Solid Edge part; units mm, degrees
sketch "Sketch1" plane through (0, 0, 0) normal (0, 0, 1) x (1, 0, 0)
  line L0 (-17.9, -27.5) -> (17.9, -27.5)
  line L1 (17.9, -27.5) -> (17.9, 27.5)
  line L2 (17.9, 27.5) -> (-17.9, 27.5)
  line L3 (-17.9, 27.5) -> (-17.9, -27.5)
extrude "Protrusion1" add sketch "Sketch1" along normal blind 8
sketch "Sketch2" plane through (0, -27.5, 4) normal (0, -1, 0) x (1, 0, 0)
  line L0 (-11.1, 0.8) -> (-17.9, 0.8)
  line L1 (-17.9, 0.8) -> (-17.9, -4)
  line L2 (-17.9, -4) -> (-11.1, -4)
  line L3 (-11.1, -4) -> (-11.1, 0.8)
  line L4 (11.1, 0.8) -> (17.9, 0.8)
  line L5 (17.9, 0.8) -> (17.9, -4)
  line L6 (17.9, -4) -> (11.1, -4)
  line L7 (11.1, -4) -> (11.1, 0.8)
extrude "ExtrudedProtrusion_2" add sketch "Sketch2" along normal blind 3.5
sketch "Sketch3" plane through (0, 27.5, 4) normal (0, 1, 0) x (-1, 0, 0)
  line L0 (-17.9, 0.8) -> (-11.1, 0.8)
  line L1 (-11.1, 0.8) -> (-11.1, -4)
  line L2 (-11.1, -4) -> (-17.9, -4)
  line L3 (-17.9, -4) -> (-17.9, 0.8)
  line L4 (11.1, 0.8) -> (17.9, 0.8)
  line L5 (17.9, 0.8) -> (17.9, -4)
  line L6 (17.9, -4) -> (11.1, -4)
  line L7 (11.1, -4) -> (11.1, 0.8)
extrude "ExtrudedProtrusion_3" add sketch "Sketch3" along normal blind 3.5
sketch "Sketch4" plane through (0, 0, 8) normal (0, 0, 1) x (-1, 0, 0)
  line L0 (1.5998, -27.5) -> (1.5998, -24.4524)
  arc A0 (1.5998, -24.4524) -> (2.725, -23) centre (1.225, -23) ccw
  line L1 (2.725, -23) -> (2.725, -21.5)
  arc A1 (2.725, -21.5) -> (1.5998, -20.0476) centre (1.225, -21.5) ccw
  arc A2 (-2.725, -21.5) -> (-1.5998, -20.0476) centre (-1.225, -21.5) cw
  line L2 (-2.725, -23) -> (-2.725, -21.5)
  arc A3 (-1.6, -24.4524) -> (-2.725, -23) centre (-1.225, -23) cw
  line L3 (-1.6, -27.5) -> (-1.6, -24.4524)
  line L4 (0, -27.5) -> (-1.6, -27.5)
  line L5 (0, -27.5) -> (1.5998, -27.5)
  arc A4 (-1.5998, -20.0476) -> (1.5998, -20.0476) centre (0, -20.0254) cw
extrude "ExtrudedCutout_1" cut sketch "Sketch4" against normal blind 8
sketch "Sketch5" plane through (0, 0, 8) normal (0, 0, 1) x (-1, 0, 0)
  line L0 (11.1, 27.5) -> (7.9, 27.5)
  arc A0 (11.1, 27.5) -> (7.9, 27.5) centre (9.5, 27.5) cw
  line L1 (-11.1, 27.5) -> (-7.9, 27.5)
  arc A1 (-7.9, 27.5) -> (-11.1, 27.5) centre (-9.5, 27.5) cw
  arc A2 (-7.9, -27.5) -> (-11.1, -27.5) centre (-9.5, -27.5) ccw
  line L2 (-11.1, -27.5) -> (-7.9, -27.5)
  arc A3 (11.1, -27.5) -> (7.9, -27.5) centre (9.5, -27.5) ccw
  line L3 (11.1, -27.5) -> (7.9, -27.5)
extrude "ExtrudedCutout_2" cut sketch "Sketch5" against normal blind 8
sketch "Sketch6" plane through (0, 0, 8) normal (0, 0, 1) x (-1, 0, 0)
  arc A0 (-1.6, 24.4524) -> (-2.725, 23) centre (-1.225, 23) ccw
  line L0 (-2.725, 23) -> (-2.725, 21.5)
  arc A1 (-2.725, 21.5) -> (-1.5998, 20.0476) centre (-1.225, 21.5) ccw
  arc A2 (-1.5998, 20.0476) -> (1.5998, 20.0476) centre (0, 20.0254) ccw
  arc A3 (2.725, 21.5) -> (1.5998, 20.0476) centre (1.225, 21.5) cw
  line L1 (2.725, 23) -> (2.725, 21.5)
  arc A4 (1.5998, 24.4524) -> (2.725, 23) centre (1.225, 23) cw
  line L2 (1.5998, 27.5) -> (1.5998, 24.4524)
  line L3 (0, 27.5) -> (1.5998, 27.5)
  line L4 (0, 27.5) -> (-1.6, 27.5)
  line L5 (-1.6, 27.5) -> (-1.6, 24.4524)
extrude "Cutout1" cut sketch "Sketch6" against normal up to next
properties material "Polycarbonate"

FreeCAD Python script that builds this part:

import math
import FreeCAD as App
import Part
import Sketcher

V = App.Vector
Q = App.Units.Quantity


def add_polygon(sketch, points):
    """Adds a closed chain of lines whose ends are joined by coincident constraints."""
    first, n = sketch.GeometryCount, len(points)
    for a, b in zip(points, points[1:] + points[:1]):
        sketch.addGeometry(Part.LineSegment(App.Vector(*a, 0), App.Vector(*b, 0)), False)
    for i in range(n):
        sketch.addConstraint(Sketcher.Constraint("Coincident", first + i, 2, first + (i + 1) % n, 1))

doc = App.newDocument("Part")
params = doc.addObject("Spreadsheet::Sheet", "Params")
for row, (alias, value) in enumerate([
    ("sketch1_height", "55 mm"),
    ("sketch1_width", "35.8 mm"),
    ("pad1_length", "8 mm"),
    ("sketch2_width", "6.8 mm"),
    ("sketch2_height", "4.8 mm"),
    ("pad2_length", "3.5 mm"),
    ("sketch3_width", "6.8 mm"),
    ("sketch3_height", "4.8 mm"),
    ("pad3_length", "3.5 mm"),
    ("sketch4_radius", "1.5 mm"),
    ("sketch4_radius2", "1.5 mm"),
    ("sketch4_radius3", "1.6 mm"),
    ("sketch4_radius4", "1.5 mm"),
    ("sketch4_radius5", "1.5 mm"),
    ("pocket1_length", "8 mm"),
    ("sketch5_radius", "1.6 mm"),
    ("pocket2_length", "8 mm"),
    ("sketch6_radius", "1.5 mm"),
    ("sketch6_radius2", "1.5 mm"),
    ("sketch6_radius3", "1.6 mm"),
    ("sketch6_radius4", "1.5 mm"),
    ("sketch6_radius5", "1.5 mm"),
], start=1):
    params.set(f"A{row}", alias)
    params.set(f"B{row}", "=" + value)
    params.setAlias(f"B{row}", alias)

body = doc.addObject("PartDesign::Body", "Body")

# Sketch on XY plane
sketch1 = doc.addObject("Sketcher::SketchObject", "Sketch")
body.addObject(sketch1)
sketch1.AttachmentSupport = (doc.XY_Plane, [""])
sketch1.MapMode = "FlatFace"
add_polygon(sketch1, [(-18, 28), (-18, -28), (18, -28), (18, 28)])  # lines 0-3
sketch1.addConstraint(Sketcher.Constraint("Vertical", 0))
sketch1.addConstraint(Sketcher.Constraint("Horizontal", 1))
sketch1.addConstraint(Sketcher.Constraint("Vertical", 2))
sketch1.addConstraint(Sketcher.Constraint("Horizontal", 3))
sketch1.addConstraint(Sketcher.Constraint("Symmetric", 0, 2, 2, 2, -1, 1))
sketch1.addConstraint(Sketcher.Constraint("DistanceY", 0, 2, 0, 1, Q("55 mm")))
sketch1.addConstraint(Sketcher.Constraint("DistanceX", 1, 1, 1, 2, Q("35.8 mm")))
sketch1.setExpression("Constraints[9]", "Params.sketch1_height")
sketch1.setExpression("Constraints[10]", "Params.sketch1_width")
pad1 = doc.addObject("PartDesign::Pad", "Pad")
body.addObject(pad1)
pad1.Profile = sketch1
pad1.setExpression("Length", "Params.pad1_length")

# Sketch on XZ plane
sketch2 = doc.addObject("Sketcher::SketchObject", "Sketch001")
body.addObject(sketch2)
sketch2.AttachmentSupport = (doc.XZ_Plane, [""])
sketch2.MapMode = "FlatFace"
sketch2.AttachmentOffset = App.Placement(V(0, 0, 27.5), App.Rotation())
add_polygon(sketch2, [(-11.1, 0), (-11.1, 4.8), (-17.9, 4.8), (-17.9, 0)])  # lines 0-3
add_polygon(sketch2, [(17.9, 4.8), (11.1, 4.8), (11.1, 0), (17.9, 0)])  # lines 4-7
sketch2.addConstraint(Sketcher.Constraint("Vertical", 0))
sketch2.addConstraint(Sketcher.Constraint("Horizontal", 1))
sketch2.addConstraint(Sketcher.Constraint("Vertical", 2))
sketch2.addConstraint(Sketcher.Constraint("Horizontal", 3))
sketch2.addConstraint(Sketcher.Constraint("Horizontal", 4))
sketch2.addConstraint(Sketcher.Constraint("Vertical", 5))
sketch2.addConstraint(Sketcher.Constraint("Horizontal", 6))
sketch2.addConstraint(Sketcher.Constraint("Vertical", 7))
sketch2.addConstraint(Sketcher.Constraint("Symmetric", 3, 2, 5, 2, -1, 1))
sketch2.addConstraint(Sketcher.Constraint("Symmetric", 2, 2, 6, 2, -2))
sketch2.addConstraint(Sketcher.Constraint("Horizontal", 1, 2, 4, 2))
sketch2.addConstraint(Sketcher.Constraint("DistanceX", 1, 2, 1, 1, Q("6.8 mm")))
sketch2.addConstraint(Sketcher.Constraint("DistanceY", 0, 1, 0, 2, Q("4.8 mm")))
sketch2.addConstraint(Sketcher.Constraint("DistanceX", 1, 2, 4, 2, Q("29 mm")))
sketch2.setExpression("Constraints[19]", "Params.sketch2_width")
sketch2.setExpression("Constraints[20]", "Params.sketch2_height")
pad2 = doc.addObject("PartDesign::Pad", "Pad001")
body.addObject(pad2)
pad2.Profile = sketch2
pad2.setExpression("Length", "Params.pad2_length")

# Sketch on XZ plane
sketch3 = doc.addObject("Sketcher::SketchObject", "Sketch002")
body.addObject(sketch3)
sketch3.AttachmentSupport = (doc.XZ_Plane, [""])
sketch3.MapMode = "FlatFace"
sketch3.AttachmentOffset = App.Placement(V(0, 0, -27.5), App.Rotation())
add_polygon(sketch3, [(11.1, 4.8), (17.9, 4.8), (17.9, 0), (11.1, 0)])  # lines 0-3
add_polygon(sketch3, [(-17.9, 4.8), (-11.1, 4.8), (-11.1, 0), (-17.9, 0)])  # lines 4-7
sketch3.addConstraint(Sketcher.Constraint("Horizontal", 0))
sketch3.addConstraint(Sketcher.Constraint("Vertical", 1))
sketch3.addConstraint(Sketcher.Constraint("Horizontal", 2))
sketch3.addConstraint(Sketcher.Constraint("Vertical", 3))
sketch3.addConstraint(Sketcher.Constraint("Horizontal", 4))
sketch3.addConstraint(Sketcher.Constraint("Vertical", 5))
sketch3.addConstraint(Sketcher.Constraint("Horizontal", 6))
sketch3.addConstraint(Sketcher.Constraint("Vertical", 7))
sketch3.addConstraint(Sketcher.Constraint("Symmetric", 2, 2, 5, 2, -1, 1))
sketch3.addConstraint(Sketcher.Constraint("Symmetric", 1, 2, 6, 2, -2))
sketch3.addConstraint(Sketcher.Constraint("Horizontal", 3, 2, 4, 2))
sketch3.addConstraint(Sketcher.Constraint("DistanceX", 0, 1, 0, 2, Q("6.8 mm")))
sketch3.addConstraint(Sketcher.Constraint("DistanceY", 1, 2, 1, 1, Q("4.8 mm")))
sketch3.addConstraint(Sketcher.Constraint("DistanceX", 4, 2, 0, 2, Q("29 mm")))
sketch3.setExpression("Constraints[19]", "Params.sketch3_width")
sketch3.setExpression("Constraints[20]", "Params.sketch3_height")
pad3 = doc.addObject("PartDesign::Pad", "Pad002")
body.addObject(pad3)
pad3.Profile = sketch3
pad3.setExpression("Length", "Params.pad3_length")
pad3.Reversed = True

# Sketch on XY plane
sketch4 = doc.addObject("Sketcher::SketchObject", "Sketch003")
body.addObject(sketch4)
sketch4.AttachmentSupport = (doc.XY_Plane, [""])
sketch4.MapMode = "FlatFace"
sketch4.AttachmentOffset = App.Placement(V(0, 0, 8), App.Rotation())
sketch4.addGeometry(Part.LineSegment(V(1.6, 27.5, 0), V(-1.5998, 27.5, 0)), False)
sketch4.addGeometry(Part.LineSegment(V(-1.5998, 27.5, 0), V(-1.5998, 24.4524, 0)), False)
sketch4.addGeometry(Part.ArcOfCircle(Part.Circle(V(-1.225, 23, 0), V(0, 0, 1), 1.49998), math.radians(104.469817), math.radians(180)), False)
sketch4.addGeometry(Part.LineSegment(V(-2.725, 23, 0), V(-2.725, 21.5, 0)), False)
sketch4.addGeometry(Part.ArcOfCircle(Part.Circle(V(-1.225, 21.5, 0), V(0, 0, 1), 1.5), math.radians(180), math.radians(255.530183)), False)
sketch4.addGeometry(Part.ArcOfCircle(Part.Circle(V(0, 20.0254, 0), V(0, 0, 1), 1.599954), math.radians(179.204973), math.radians(360.795027)), False)
sketch4.addGeometry(Part.ArcOfCircle(Part.Circle(V(1.225, 21.5, 0), V(0, 0, 1), 1.5), math.radians(-75.530183), math.radians(0)), False)
sketch4.addGeometry(Part.LineSegment(V(2.725, 21.5, 0), V(2.725, 23, 0)), False)
sketch4.addGeometry(Part.ArcOfCircle(Part.Circle(V(1.225, 23, 0), V(0, 0, 1), 1.50003), math.radians(0), math.radians(75.522786)), False)
sketch4.addGeometry(Part.LineSegment(V(1.6, 24.4524, 0), V(1.6, 27.5, 0)), False)
sketch4.addConstraint(Sketcher.Constraint("Coincident", 0, 2, 1, 1))
sketch4.addConstraint(Sketcher.Constraint("Coincident", 1, 2, 2, 1))
sketch4.addConstraint(Sketcher.Constraint("Coincident", 2, 2, 3, 1))
sketch4.addConstraint(Sketcher.Constraint("Coincident", 3, 2, 4, 1))
sketch4.addConstraint(Sketcher.Constraint("Coincident", 4, 2, 5, 1))
sketch4.addConstraint(Sketcher.Constraint("Coincident", 5, 2, 6, 1))
sketch4.addConstraint(Sketcher.Constraint("Coincident", 6, 2, 7, 1))
sketch4.addConstraint(Sketcher.Constraint("Coincident", 7, 2, 8, 1))
sketch4.addConstraint(Sketcher.Constraint("Coincident", 8, 2, 9, 1))
sketch4.addConstraint(Sketcher.Constraint("Coincident", 9, 2, 0, 1))
sketch4.addConstraint(Sketcher.Constraint("Horizontal", 0))
sketch4.addConstraint(Sketcher.Constraint("Vertical", 1))
sketch4.addConstraint(Sketcher.Constraint("Vertical", 3))
sketch4.addConstraint(Sketcher.Constraint("Vertical", 7))
sketch4.addConstraint(Sketcher.Constraint("Vertical", 9))
sketch4.addConstraint(Sketcher.Constraint("PointOnObject", 5, 3, -2))
sketch4.addConstraint(Sketcher.Constraint("Radius", 2, Q("1.5 mm")))
sketch4.addConstraint(Sketcher.Constraint("Radius", 4, Q("1.5 mm")))
sketch4.addConstraint(Sketcher.Constraint("Radius", 5, Q("1.6 mm")))
sketch4.addConstraint(Sketcher.Constraint("Radius", 6, Q("1.5 mm")))
sketch4.addConstraint(Sketcher.Constraint("Radius", 8, Q("1.5 mm")))
sketch4.addConstraint(Sketcher.Constraint("DistanceY", 3, 2, 3, 1, Q("1.5 mm")))
sketch4.addConstraint(Sketcher.Constraint("DistanceY", 7, 1, 7, 2, Q("1.5 mm")))
sketch4.addConstraint(Sketcher.Constraint("DistanceY", -1, 1, 2, 3, Q("23 mm")))
sketch4.addConstraint(Sketcher.Constraint("DistanceY", -1, 1, 8, 3, Q("23 mm")))
sketch4.addConstraint(Sketcher.Constraint("DistanceY", -1, 1, 2, 2, Q("23 mm")))
sketch4.addConstraint(Sketcher.Constraint("DistanceY", -1, 1, 7, 2, Q("23 mm")))
sketch4.addConstraint(Sketcher.Constraint("DistanceY", 4, 3, 0, 2, Q("6 mm")))
sketch4.addConstraint(Sketcher.Constraint("DistanceY", 6, 3, 0, 2, Q("6 mm")))
sketch4.addConstraint(Sketcher.Constraint("DistanceY", -1, 1, 4, 3, Q("21.5 mm")))
sketch4.addConstraint(Sketcher.Constraint("DistanceX", -1, 1, 8, 2, Q("1.6 mm")))
sketch4.addConstraint(Sketcher.Constraint("DistanceX", 4, 3, 6, 3, Q("2.45 mm")))
sketch4.addConstraint(Sketcher.Constraint("DistanceX", 0, 2, 0, 1, Q("3.1998 mm")))
sketch4.addConstraint(Sketcher.Constraint("DistanceY", 1, 2, 1, 1, Q("3.0476 mm")))
sketch4.addConstraint(Sketcher.Constraint("DistanceY", -1, 1, 5, 3, Q("20.0254 mm")))
sketch4.setExpression("Constraints[16]", "Params.sketch4_radius")
sketch4.setExpression("Constraints[17]", "Params.sketch4_radius2")
sketch4.setExpression("Constraints[18]", "Params.sketch4_radius3")
sketch4.setExpression("Constraints[19]", "Params.sketch4_radius4")
sketch4.setExpression("Constraints[20]", "Params.sketch4_radius5")
pocket1 = doc.addObject("PartDesign::Pocket", "Pocket")
body.addObject(pocket1)
pocket1.Profile = sketch4
pocket1.setExpression("Length", "Params.pocket1_length")

# Sketch on XY plane
sketch5 = doc.addObject("Sketcher::SketchObject", "Sketch004")
body.addObject(sketch5)
sketch5.AttachmentSupport = (doc.XY_Plane, [""])
sketch5.MapMode = "FlatFace"
sketch5.AttachmentOffset = App.Placement(V(0, 0, 8), App.Rotation())
sketch5.addGeometry(Part.ArcOfCircle(Part.Circle(V(-9.5, -27.5, 0), V(0, 0, 1), 1.6), math.radians(0), math.radians(180)), False)
sketch5.addGeometry(Part.LineSegment(V(-11.1, -27.5, 0), V(-7.9, -27.5, 0)), False)
sketch5.addGeometry(Part.LineSegment(V(7.9, -27.5, 0), V(11.1, -27.5, 0)), False)
sketch5.addGeometry(Part.ArcOfCircle(Part.Circle(V(9.5, -27.5, 0), V(0, 0, 1), 1.6), math.radians(0), math.radians(180)), False)
sketch5.addGeometry(Part.LineSegment(V(11.1, 27.5, 0), V(7.9, 27.5, 0)), False)
sketch5.addGeometry(Part.ArcOfCircle(Part.Circle(V(9.5, 27.5, 0), V(0, 0, 1), 1.6), math.radians(180), math.radians(360)), False)
sketch5.addGeometry(Part.LineSegment(V(-7.9, 27.5, 0), V(-11.1, 27.5, 0)), False)
sketch5.addGeometry(Part.ArcOfCircle(Part.Circle(V(-9.5, 27.5, 0), V(0, 0, 1), 1.6), math.radians(180), math.radians(360)), False)
sketch5.addConstraint(Sketcher.Constraint("Coincident", 0, 1, 1, 2))
sketch5.addConstraint(Sketcher.Constraint("Coincident", 1, 1, 0, 2))
sketch5.addConstraint(Sketcher.Constraint("Coincident", 2, 1, 3, 2))
sketch5.addConstraint(Sketcher.Constraint("Coincident", 3, 1, 2, 2))
sketch5.addConstraint(Sketcher.Constraint("Coincident", 4, 1, 5, 2))
sketch5.addConstraint(Sketcher.Constraint("Coincident", 5, 1, 4, 2))
sketch5.addConstraint(Sketcher.Constraint("Coincident", 6, 1, 7, 2))
sketch5.addConstraint(Sketcher.Constraint("Coincident", 7, 1, 6, 2))
sketch5.addConstraint(Sketcher.Constraint("Horizontal", 1))
sketch5.addConstraint(Sketcher.Constraint("Horizontal", 2))
sketch5.addConstraint(Sketcher.Constraint("Horizontal", 4))
sketch5.addConstraint(Sketcher.Constraint("Horizontal", 6))
sketch5.addConstraint(Sketcher.Constraint("Equal", 0, 3))
sketch5.addConstraint(Sketcher.Constraint("Equal", 3, 5))
sketch5.addConstraint(Sketcher.Constraint("Equal", 5, 7))
sketch5.addConstraint(Sketcher.Constraint("Symmetric", 0, 3, 5, 3, -1, 1))
sketch5.addConstraint(Sketcher.Constraint("Symmetric", 3, 3, 7, 3, -1, 1))
sketch5.addConstraint(Sketcher.Constraint("Symmetric", 0, 3, 3, 3, -2))
sketch5.addConstraint(Sketcher.Constraint("Horizontal", 3, 3, 0, 1))
sketch5.addConstraint(Sketcher.Constraint("Horizontal", 1, 1, 2, 1))
sketch5.addConstraint(Sketcher.Constraint("Horizontal", 7, 3, 4, 1))
sketch5.addConstraint(Sketcher.Constraint("Horizontal", 5, 1, 6, 1))
sketch5.addConstraint(Sketcher.Constraint("Radius", 0, Q("1.6 mm")))
sketch5.addConstraint(Sketcher.Constraint("DistanceX", 0, 3, 3, 3, Q("19 mm")))
sketch5.addConstraint(Sketcher.Constraint("DistanceY", 3, 3, 5, 3, Q("55 mm")))
sketch5.setExpression("Constraints[22]", "Params.sketch5_radius")
pocket2 = doc.addObject("PartDesign::Pocket", "Pocket001")
body.addObject(pocket2)
pocket2.Profile = sketch5
pocket2.setExpression("Length", "Params.pocket2_length")

# Sketch on XY plane
sketch6 = doc.addObject("Sketcher::SketchObject", "Sketch005")
body.addObject(sketch6)
sketch6.AttachmentSupport = (doc.XY_Plane, [""])
sketch6.MapMode = "FlatFace"
sketch6.AttachmentOffset = App.Placement(V(0, 0, 8), App.Rotation())
sketch6.addGeometry(Part.LineSegment(V(1.6, -27.5, 0), V(1.6, -24.4524, 0)), False)
sketch6.addGeometry(Part.ArcOfCircle(Part.Circle(V(1.225, -23, 0), V(0, 0, 1), 1.50003), math.radians(-75.522786), math.radians(0)), False)
sketch6.addGeometry(Part.LineSegment(V(2.725, -23, 0), V(2.725, -21.5, 0)), False)
sketch6.addGeometry(Part.ArcOfCircle(Part.Circle(V(1.225, -21.5, 0), V(0, 0, 1), 1.5), math.radians(0), math.radians(75.530183)), False)
sketch6.addGeometry(Part.ArcOfCircle(Part.Circle(V(0, -20.0254, 0), V(0, 0, 1), 1.599954), math.radians(-0.795027), math.radians(180.795027)), False)
sketch6.addGeometry(Part.ArcOfCircle(Part.Circle(V(-1.225, -21.5, 0), V(0, 0, 1), 1.5), math.radians(104.469817), math.radians(180)), False)
sketch6.addGeometry(Part.LineSegment(V(-2.725, -21.5, 0), V(-2.725, -23, 0)), False)
sketch6.addGeometry(Part.ArcOfCircle(Part.Circle(V(-1.225, -23, 0), V(0, 0, 1), 1.49998), math.radians(180), math.radians(255.530183)), False)
sketch6.addGeometry(Part.LineSegment(V(-1.5998, -24.4524, 0), V(-1.5998, -27.5, 0)), False)
sketch6.addGeometry(Part.LineSegment(V(-1.5998, -27.5, 0), V(1.6, -27.5, 0)), False)
sketch6.addConstraint(Sketcher.Constraint("Coincident", 0, 2, 1, 1))
sketch6.addConstraint(Sketcher.Constraint("Coincident", 1, 2, 2, 1))
sketch6.addConstraint(Sketcher.Constraint("Coincident", 2, 2, 3, 1))
sketch6.addConstraint(Sketcher.Constraint("Coincident", 3, 2, 4, 1))
sketch6.addConstraint(Sketcher.Constraint("Coincident", 4, 2, 5, 1))
sketch6.addConstraint(Sketcher.Constraint("Coincident", 5, 2, 6, 1))
sketch6.addConstraint(Sketcher.Constraint("Coincident", 6, 2, 7, 1))
sketch6.addConstraint(Sketcher.Constraint("Coincident", 7, 2, 8, 1))
sketch6.addConstraint(Sketcher.Constraint("Coincident", 8, 2, 9, 1))
sketch6.addConstraint(Sketcher.Constraint("Coincident", 9, 2, 0, 1))
sketch6.addConstraint(Sketcher.Constraint("Vertical", 0))
sketch6.addConstraint(Sketcher.Constraint("Vertical", 2))
sketch6.addConstraint(Sketcher.Constraint("Vertical", 6))
sketch6.addConstraint(Sketcher.Constraint("Vertical", 8))
sketch6.addConstraint(Sketcher.Constraint("Horizontal", 9))
sketch6.addConstraint(Sketcher.Constraint("PointOnObject", 4, 3, -2))
sketch6.addConstraint(Sketcher.Constraint("Radius", 1, Q("1.5 mm")))
sketch6.addConstraint(Sketcher.Constraint("Radius", 3, Q("1.5 mm")))
sketch6.addConstraint(Sketcher.Constraint("Radius", 4, Q("1.6 mm")))
sketch6.addConstraint(Sketcher.Constraint("Radius", 5, Q("1.5 mm")))
sketch6.addConstraint(Sketcher.Constraint("Radius", 7, Q("1.5 mm")))
sketch6.addConstraint(Sketcher.Constraint("DistanceY", 2, 1, 2, 2, Q("1.5 mm")))
sketch6.addConstraint(Sketcher.Constraint("DistanceY", 6, 2, 6, 1, Q("1.5 mm")))
sketch6.addConstraint(Sketcher.Constraint("DistanceY", 1, 3, -1, 1, Q("23 mm")))
sketch6.addConstraint(Sketcher.Constraint("DistanceY", 7, 3, -1, 1, Q("23 mm")))
sketch6.addConstraint(Sketcher.Constraint("DistanceY", 1, 2, -1, 1, Q("23 mm")))
sketch6.addConstraint(Sketcher.Constraint("DistanceY", 6, 2, -1, 1, Q("23 mm")))
sketch6.addConstraint(Sketcher.Constraint("DistanceY", 3, 3, -1, 1, Q("21.5 mm")))
sketch6.addConstraint(Sketcher.Constraint("DistanceY", 5, 3, -1, 1, Q("21.5 mm")))
sketch6.addConstraint(Sketcher.Constraint("DistanceX", -1, 1, 0, 2, Q("1.6 mm")))
sketch6.addConstraint(Sketcher.Constraint("DistanceY", 8, 2, -1, 1, Q("27.5 mm")))
sketch6.addConstraint(Sketcher.Constraint("DistanceX", 5, 3, 3, 3, Q("2.45 mm")))
sketch6.addConstraint(Sketcher.Constraint("DistanceX", 9, 1, 9, 2, Q("3.1998 mm")))
sketch6.addConstraint(Sketcher.Constraint("DistanceY", 0, 1, 0, 2, Q("3.0476 mm")))
sketch6.addConstraint(Sketcher.Constraint("DistanceY", 0, 2, 4, 3, Q("4.427 mm")))
sketch6.setExpression("Constraints[16]", "Params.sketch6_radius")
sketch6.setExpression("Constraints[17]", "Params.sketch6_radius2")
sketch6.setExpression("Constraints[18]", "Params.sketch6_radius3")
sketch6.setExpression("Constraints[19]", "Params.sketch6_radius4")
sketch6.setExpression("Constraints[20]", "Params.sketch6_radius5")
pocket3 = doc.addObject("PartDesign::Pocket", "Pocket002")
body.addObject(pocket3)
pocket3.Profile = sketch6
pocket3.Type = "UpToFirst"

doc.recompute()
